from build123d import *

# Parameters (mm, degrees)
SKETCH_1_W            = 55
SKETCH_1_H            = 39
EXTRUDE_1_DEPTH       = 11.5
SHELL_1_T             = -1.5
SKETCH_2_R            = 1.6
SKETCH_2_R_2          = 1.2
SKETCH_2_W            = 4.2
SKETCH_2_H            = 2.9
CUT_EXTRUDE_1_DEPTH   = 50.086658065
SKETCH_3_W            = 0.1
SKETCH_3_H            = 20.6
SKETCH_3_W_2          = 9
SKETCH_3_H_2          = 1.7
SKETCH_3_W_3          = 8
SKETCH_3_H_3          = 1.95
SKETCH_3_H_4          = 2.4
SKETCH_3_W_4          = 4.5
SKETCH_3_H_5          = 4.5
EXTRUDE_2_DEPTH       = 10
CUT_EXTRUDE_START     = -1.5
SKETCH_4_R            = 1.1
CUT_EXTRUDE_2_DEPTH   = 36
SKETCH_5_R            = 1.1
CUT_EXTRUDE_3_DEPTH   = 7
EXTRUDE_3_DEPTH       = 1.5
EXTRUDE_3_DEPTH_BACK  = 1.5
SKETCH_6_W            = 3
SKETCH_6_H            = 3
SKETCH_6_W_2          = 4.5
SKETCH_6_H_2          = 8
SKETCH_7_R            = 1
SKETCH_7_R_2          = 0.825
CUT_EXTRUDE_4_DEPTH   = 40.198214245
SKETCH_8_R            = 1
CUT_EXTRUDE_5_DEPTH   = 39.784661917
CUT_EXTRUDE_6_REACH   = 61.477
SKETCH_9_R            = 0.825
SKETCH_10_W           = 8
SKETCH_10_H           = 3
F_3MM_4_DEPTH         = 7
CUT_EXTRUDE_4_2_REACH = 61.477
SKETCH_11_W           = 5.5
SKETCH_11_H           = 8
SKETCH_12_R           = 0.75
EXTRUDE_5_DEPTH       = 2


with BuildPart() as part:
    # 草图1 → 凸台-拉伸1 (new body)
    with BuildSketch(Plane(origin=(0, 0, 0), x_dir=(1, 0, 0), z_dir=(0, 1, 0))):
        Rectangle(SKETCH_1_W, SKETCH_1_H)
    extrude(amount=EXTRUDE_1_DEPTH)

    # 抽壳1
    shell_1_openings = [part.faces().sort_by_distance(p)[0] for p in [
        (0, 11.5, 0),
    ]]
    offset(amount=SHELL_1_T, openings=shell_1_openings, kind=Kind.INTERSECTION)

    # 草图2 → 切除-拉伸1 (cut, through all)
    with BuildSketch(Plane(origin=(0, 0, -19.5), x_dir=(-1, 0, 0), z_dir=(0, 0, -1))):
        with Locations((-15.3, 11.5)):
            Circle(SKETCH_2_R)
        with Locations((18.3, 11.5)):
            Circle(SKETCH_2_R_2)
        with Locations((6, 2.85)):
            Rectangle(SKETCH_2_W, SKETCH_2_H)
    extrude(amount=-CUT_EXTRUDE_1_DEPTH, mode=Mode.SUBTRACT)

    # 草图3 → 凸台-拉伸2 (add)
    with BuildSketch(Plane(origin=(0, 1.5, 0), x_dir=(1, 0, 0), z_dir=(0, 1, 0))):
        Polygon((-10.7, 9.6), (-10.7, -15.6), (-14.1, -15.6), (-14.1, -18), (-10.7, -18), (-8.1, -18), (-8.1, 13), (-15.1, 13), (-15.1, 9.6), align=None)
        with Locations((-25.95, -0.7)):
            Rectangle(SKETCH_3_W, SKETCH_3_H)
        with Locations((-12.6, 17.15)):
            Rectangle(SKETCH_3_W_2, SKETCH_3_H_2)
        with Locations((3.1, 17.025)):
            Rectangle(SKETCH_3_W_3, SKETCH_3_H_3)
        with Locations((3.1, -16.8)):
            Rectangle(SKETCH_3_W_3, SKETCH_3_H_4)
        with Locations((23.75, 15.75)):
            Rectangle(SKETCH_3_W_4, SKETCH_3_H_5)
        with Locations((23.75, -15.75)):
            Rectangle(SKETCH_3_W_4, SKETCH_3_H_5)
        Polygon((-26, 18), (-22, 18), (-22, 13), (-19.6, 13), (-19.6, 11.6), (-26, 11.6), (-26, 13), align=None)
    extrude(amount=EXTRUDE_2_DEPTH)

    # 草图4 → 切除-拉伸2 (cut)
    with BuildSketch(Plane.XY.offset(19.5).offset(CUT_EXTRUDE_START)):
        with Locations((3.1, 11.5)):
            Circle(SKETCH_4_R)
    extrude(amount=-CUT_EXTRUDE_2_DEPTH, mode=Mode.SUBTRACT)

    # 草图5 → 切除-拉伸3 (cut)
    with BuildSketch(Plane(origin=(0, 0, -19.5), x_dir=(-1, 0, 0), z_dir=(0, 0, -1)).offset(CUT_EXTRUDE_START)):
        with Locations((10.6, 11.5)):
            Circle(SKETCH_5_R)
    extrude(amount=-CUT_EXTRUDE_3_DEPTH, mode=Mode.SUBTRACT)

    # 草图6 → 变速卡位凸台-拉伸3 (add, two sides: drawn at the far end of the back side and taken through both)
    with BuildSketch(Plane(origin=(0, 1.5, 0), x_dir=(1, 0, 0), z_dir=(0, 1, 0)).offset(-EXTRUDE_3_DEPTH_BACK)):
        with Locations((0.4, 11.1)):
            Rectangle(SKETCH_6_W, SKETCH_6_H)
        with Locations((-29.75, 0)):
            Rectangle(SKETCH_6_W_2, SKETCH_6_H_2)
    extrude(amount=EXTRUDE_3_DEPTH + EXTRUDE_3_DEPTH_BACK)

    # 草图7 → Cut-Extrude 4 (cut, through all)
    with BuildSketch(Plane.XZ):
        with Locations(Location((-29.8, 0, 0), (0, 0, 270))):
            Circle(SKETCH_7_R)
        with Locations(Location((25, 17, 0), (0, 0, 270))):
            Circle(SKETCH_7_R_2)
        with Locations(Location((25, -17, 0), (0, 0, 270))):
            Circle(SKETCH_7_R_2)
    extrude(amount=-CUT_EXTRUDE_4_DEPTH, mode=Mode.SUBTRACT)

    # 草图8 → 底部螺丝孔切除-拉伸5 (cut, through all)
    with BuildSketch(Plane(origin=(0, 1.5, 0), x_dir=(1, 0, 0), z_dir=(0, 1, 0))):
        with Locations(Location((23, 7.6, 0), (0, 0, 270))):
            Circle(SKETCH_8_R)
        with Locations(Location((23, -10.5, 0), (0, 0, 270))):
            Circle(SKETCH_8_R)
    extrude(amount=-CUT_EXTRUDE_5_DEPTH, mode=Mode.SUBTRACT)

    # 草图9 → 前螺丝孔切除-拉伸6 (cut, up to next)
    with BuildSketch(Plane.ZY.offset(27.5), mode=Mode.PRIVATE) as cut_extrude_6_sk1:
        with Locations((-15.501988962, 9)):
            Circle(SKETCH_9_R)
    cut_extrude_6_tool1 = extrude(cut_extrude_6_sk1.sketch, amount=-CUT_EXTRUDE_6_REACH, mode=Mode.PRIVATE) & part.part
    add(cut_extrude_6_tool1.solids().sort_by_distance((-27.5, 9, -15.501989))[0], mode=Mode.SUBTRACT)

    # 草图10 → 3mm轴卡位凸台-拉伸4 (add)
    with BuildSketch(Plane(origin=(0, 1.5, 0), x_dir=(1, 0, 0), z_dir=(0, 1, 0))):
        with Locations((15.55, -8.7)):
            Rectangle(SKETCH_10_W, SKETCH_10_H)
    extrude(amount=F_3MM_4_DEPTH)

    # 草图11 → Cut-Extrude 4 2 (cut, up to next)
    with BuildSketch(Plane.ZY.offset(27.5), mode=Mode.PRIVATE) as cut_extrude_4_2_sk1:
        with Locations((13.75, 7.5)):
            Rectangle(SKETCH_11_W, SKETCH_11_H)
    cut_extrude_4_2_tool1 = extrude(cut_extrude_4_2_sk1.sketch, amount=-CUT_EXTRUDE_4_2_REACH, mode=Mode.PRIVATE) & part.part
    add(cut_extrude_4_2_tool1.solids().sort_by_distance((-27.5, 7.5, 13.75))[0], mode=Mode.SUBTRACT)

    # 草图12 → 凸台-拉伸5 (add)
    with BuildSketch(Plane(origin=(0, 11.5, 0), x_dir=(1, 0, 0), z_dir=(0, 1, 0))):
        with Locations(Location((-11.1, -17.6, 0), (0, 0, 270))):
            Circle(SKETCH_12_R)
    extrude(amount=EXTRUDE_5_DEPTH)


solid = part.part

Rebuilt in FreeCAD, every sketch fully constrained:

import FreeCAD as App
import Part
import Sketcher
Q = App.Units.Quantity


def faces_at(feature, points):
    """Names of the faces that lie closest to the given points."""
    faces = feature.Shape.Faces
    near = lambda p: min(range(len(faces)), key=lambda i: faces[i].distToShape(Part.Vertex(*p))[0])
    return sorted({f"Face{near(p) + 1}" for p in points})

doc = App.newDocument("Part")
params = doc.addObject("Spreadsheet::Sheet", "Params")
for row, (alias, value) in enumerate([
    ("sketch1_width", "55 mm"),
    ("sketch1_height", "39 mm"),
    ("pad1_length", "11.5 mm"),
    ("thickness_wall", "1.5 mm"),
    ("sketch2_diameter", "3.2 mm"),
    ("sketch2_diameter2", "2.4 mm"),
    ("sketch2_width", "4.2 mm"),
    ("sketch2_height", "2.9 mm"),
    ("sketch3_width", "6 mm"),
    ("sketch3_width2", "7 mm"),
    ("sketch3_width3", "9 mm"),
    ("sketch3_width4", "8 mm"),
    ("sketch3_width5", "4 mm"),
    ("pad2_length", "10 mm"),
    ("sketch4_diameter", "2.2 mm"),
    ("pocket2_length", "36 mm"),
    ("sketch5_diameter", "2.2 mm"),
    ("pocket3_length", "7 mm"),
    ("sketch6_width", "3 mm"),
    ("sketch6_height", "8 mm"),
    ("sketch6_width2", "4.5 mm"),
    ("pad3_length", "1.5 mm"),
    ("pad3_length2", "1.5 mm"),
    ("sketch7_diameter", "2 mm"),
    ("sketch7_diameter2", "1.65 mm"),
    ("sketch8_diameter", "2 mm"),
    ("sketch9_diameter", "1.65 mm"),
    ("sketch10_width", "8 mm"),
    ("sketch10_height", "3 mm"),
    ("pad4_length", "7 mm"),
    ("sketch11_width", "8 mm"),
    ("sketch11_height", "5.5 mm"),
    ("sketch12_diameter", "1.5 mm"),
    ("pad5_length", "2 mm"),
], start=1):
    params.set(f"A{row}", alias)
    params.set(f"B{row}", "=" + value)
    params.setAlias(f"B{row}", alias)

body = doc.addObject("PartDesign::Body", "Body")

# Sketch on XZ plane
sketch1 = body.newObject("Sketcher::SketchObject", "Sketch")
sketch1.AttachmentSupport = (doc.getObject("XZ_Plane"), [""])
sketch1.MapMode = "FlatFace"
sketch1.addGeometry([
    Part.LineSegment(App.Vector(-27.5, -19.5, 0), App.Vector(-27.5, 19.5, 0)),
    Part.LineSegment(App.Vector(-27.5, 19.5, 0), App.Vector(27.5, 19.5, 0)),
    Part.LineSegment(App.Vector(27.5, 19.5, 0), App.Vector(27.5, -19.5, 0)),
    Part.LineSegment(App.Vector(27.5, -19.5, 0), App.Vector(-27.5, -19.5, 0)),
], False)
sketch1.addConstraint([
    Sketcher.Constraint("Coincident", 0, 2, 1, 1),
    Sketcher.Constraint("Coincident", 1, 2, 2, 1),
    Sketcher.Constraint("Coincident", 2, 2, 3, 1),
    Sketcher.Constraint("Coincident", 3, 2, 0, 1),
    Sketcher.Constraint("Vertical", 0),
    Sketcher.Constraint("Horizontal", 1),
    Sketcher.Constraint("Vertical", 2),
    Sketcher.Constraint("Horizontal", 3),
    Sketcher.Constraint("Symmetric", 0, 2, 2, 2, -1, 1),
    Sketcher.Constraint("DistanceX", 1, 1, 1, 2, Q("55 mm")),
    Sketcher.Constraint("DistanceY", 0, 1, 0, 2, Q("39 mm")),
])
sketch1.setExpression("Constraints[9]", "Params.sketch1_width")
sketch1.setExpression("Constraints[10]", "Params.sketch1_height")
pad1 = body.newObject("PartDesign::Pad", "Pad")
pad1.Profile = sketch1
pad1.setExpression("Length", "Params.pad1_length")
pad1.Reversed = True
doc.recompute()

thickness = body.newObject("PartDesign::Thickness", "Thickness")
thickness.Base = (pad1, faces_at(pad1, [(0, 11.5, 0)]))
thickness.setExpression("Value", "Params.thickness_wall")
thickness.Reversed = True
thickness.Join = "Intersection"

# Sketch on XY plane
sketch2 = body.newObject("Sketcher::SketchObject", "Sketch001")
sketch2.AttachmentSupport = (doc.getObject("XY_Plane"), [""])
sketch2.MapMode = "FlatFace"
sketch2.AttachmentOffset = App.Placement(App.Vector(0, 0, -19.5), App.Rotation())
sketch2.addGeometry([
    Part.Circle(App.Vector(15.3, 11.5, 0), App.Vector(0, 0, 1), 1.6),  # 0
    Part.Circle(App.Vector(-18.3, 11.5, 0), App.Vector(0, 0, 1), 1.2),  # 1
    Part.LineSegment(App.Vector(-3.9, 4.3, 0), App.Vector(-3.9, 1.4, 0)),  # 2
    Part.LineSegment(App.Vector(-3.9, 1.4, 0), App.Vector(-8.1, 1.4, 0)),  # 3
    Part.LineSegment(App.Vector(-8.1, 1.4, 0), App.Vector(-8.1, 4.3, 0)),  # 4
    Part.LineSegment(App.Vector(-8.1, 4.3, 0), App.Vector(-3.9, 4.3, 0)),  # 5
], False)
sketch2.addConstraint([
    Sketcher.Constraint("Coincident", 2, 2, 3, 1),
    Sketcher.Constraint("Coincident", 3, 2, 4, 1),
    Sketcher.Constraint("Coincident", 4, 2, 5, 1),
    Sketcher.Constraint("Coincident", 5, 2, 2, 1),
    Sketcher.Constraint("Vertical", 2),
    Sketcher.Constraint("Horizontal", 3),
    Sketcher.Constraint("Vertical", 4),
    Sketcher.Constraint("Horizontal", 5),
    Sketcher.Constraint("Horizontal", 0, 3, 1, 3),
    Sketcher.Constraint("Diameter", 0, Q("3.2 mm")),
    Sketcher.Constraint("Diameter", 1, Q("2.4 mm")),
    Sketcher.Constraint("DistanceX", 3, 2, 3, 1, Q("4.2 mm")),
    Sketcher.Constraint("DistanceY", 2, 2, 2, 1, Q("2.9 mm")),
    Sketcher.Constraint("DistanceX", -1, 1, 0, 3, Q("15.3 mm")),
    Sketcher.Constraint("DistanceY", -1, 1, 0, 3, Q("11.5 mm")),
    Sketcher.Constraint("DistanceX", 1, 3, -1, 1, Q("18.3 mm")),
    Sketcher.Constraint("DistanceX", 2, 2, -1, 1, Q("3.9 mm")),
    Sketcher.Constraint("DistanceY", -1, 1, 2, 2, Q("1.4 mm")),
])
sketch2.setExpression("Constraints[9]", "Params.sketch2_diameter")
sketch2.setExpression("Constraints[10]", "Params.sketch2_diameter2")
sketch2.setExpression("Constraints[11]", "Params.sketch2_width")
sketch2.setExpression("Constraints[12]", "Params.sketch2_height")
pocket1 = body.newObject("PartDesign::Pocket", "Pocket")
pocket1.Profile = sketch2
pocket1.Type = "ThroughAll"
pocket1.Reversed = True

# Sketch on XZ plane
sketch3 = body.newObject("Sketcher::SketchObject", "Sketch002")
sketch3.AttachmentSupport = (doc.getObject("XZ_Plane"), [""])
sketch3.MapMode = "FlatFace"
sketch3.AttachmentOffset = App.Placement(App.Vector(0, 0, -1.5), App.Rotation())
sketch3.addGeometry([
    Part.LineSegment(App.Vector(-10.7, -9.6, 0), App.Vector(-10.7, 15.6, 0)),  # 0
    Part.LineSegment(App.Vector(-10.7, 15.6, 0), App.Vector(-14.1, 15.6, 0)),  # 1
    Part.LineSegment(App.Vector(-14.1, 15.6, 0), App.Vector(-14.1, 18, 0)),  # 2
    Part.LineSegment(App.Vector(-14.1, 18, 0), App.Vector(-8.1, 18, 0)),  # 3
    Part.LineSegment(App.Vector(-8.1, 18, 0), App.Vector(-8.1, -13, 0)),  # 4
    Part.LineSegment(App.Vector(-8.1, -13, 0), App.Vector(-15.1, -13, 0)),  # 5
    Part.LineSegment(App.Vector(-15.1, -13, 0), App.Vector(-15.1, -9.6, 0)),  # 6
    Part.LineSegment(App.Vector(-15.1, -9.6, 0), App.Vector(-10.7, -9.6, 0)),  # 7
    Part.LineSegment(App.Vector(-26, -9.6, 0), App.Vector(-26, 11, 0)),  # 8
    Part.LineSegment(App.Vector(-26, 11, 0), App.Vector(-25.9, 11, 0)),  # 9
    Part.LineSegment(App.Vector(-25.9, 11, 0), App.Vector(-25.9, -9.6, 0)),  # 10
    Part.LineSegment(App.Vector(-25.9, -9.6, 0), App.Vector(-26, -9.6, 0)),  # 11
    Part.LineSegment(App.Vector(-17.1, -18, 0), App.Vector(-17.1, -16.3, 0)),  # 12
    Part.LineSegment(App.Vector(-17.1, -16.3, 0), App.Vector(-8.1, -16.3, 0)),  # 13
    Part.LineSegment(App.Vector(-8.1, -16.3, 0), App.Vector(-8.1, -18, 0)),  # 14
    Part.LineSegment(App.Vector(-8.1, -18, 0), App.Vector(-17.1, -18, 0)),  # 15
    Part.LineSegment(App.Vector(-0.9, -18, 0), App.Vector(-0.9, -16.05, 0)),  # 16
    Part.LineSegment(App.Vector(-0.9, -16.05, 0), App.Vector(7.1, -16.05, 0)),  # 17
    Part.LineSegment(App.Vector(7.1, -16.05, 0), App.Vector(7.1, -18, 0)),  # 18
    Part.LineSegment(App.Vector(7.1, -18, 0), App.Vector(-0.9, -18, 0)),  # 19
    Part.LineSegment(App.Vector(-0.9, 15.6, 0), App.Vector(-0.9, 18, 0)),  # 20
    Part.LineSegment(App.Vector(-0.9, 18, 0), App.Vector(7.1, 18, 0)),  # 21
    Part.LineSegment(App.Vector(7.1, 18, 0), App.Vector(7.1, 15.6, 0)),  # 22
    Part.LineSegment(App.Vector(7.1, 15.6, 0), App.Vector(-0.9, 15.6, 0)),  # 23
    Part.LineSegment(App.Vector(21.5, -18, 0), App.Vector(21.5, -13.5, 0)),  # 24
    Part.LineSegment(App.Vector(21.5, -13.5, 0), App.Vector(26, -13.5, 0)),  # 25
    Part.LineSegment(App.Vector(26, -13.5, 0), App.Vector(26, -18, 0)),  # 26
    Part.LineSegment(App.Vector(26, -18, 0), App.Vector(21.5, -18, 0)),  # 27
    Part.LineSegment(App.Vector(21.5, 13.5, 0), App.Vector(21.5, 18, 0)),  # 28
    Part.LineSegment(App.Vector(21.5, 18, 0), App.Vector(26, 18, 0)),  # 29
    Part.LineSegment(App.Vector(26, 18, 0), App.Vector(26, 13.5, 0)),  # 30
    Part.LineSegment(App.Vector(26, 13.5, 0), App.Vector(21.5, 13.5, 0)),  # 31
    Part.LineSegment(App.Vector(-22, -18, 0), App.Vector(-26, -18, 0)),  # 32
    Part.LineSegment(App.Vector(-26, -18, 0), App.Vector(-26, -11.6, 0)),  # 33
    Part.LineSegment(App.Vector(-26, -11.6, 0), App.Vector(-19.6, -11.6, 0)),  # 34
    Part.LineSegment(App.Vector(-19.6, -11.6, 0), App.Vector(-19.6, -13, 0)),  # 35
    Part.LineSegment(App.Vector(-19.6, -13, 0), App.Vector(-22, -13, 0)),  # 36
    Part.LineSegment(App.Vector(-22, -13, 0), App.Vector(-22, -18, 0)),  # 37
], False)
sketch3.addConstraint([
    Sketcher.Constraint("Coincident", 0, 2, 1, 1),
    Sketcher.Constraint("Coincident", 1, 2, 2, 1),
    Sketcher.Constraint("Coincident", 2, 2, 3, 1),
    Sketcher.Constraint("Coincident", 3, 2, 4, 1),
    Sketcher.Constraint("Coincident", 4, 2, 5, 1),
    Sketcher.Constraint("Coincident", 5, 2, 6, 1),
    Sketcher.Constraint("Coincident", 6, 2, 7, 1),
    Sketcher.Constraint("Coincident", 7, 2, 0, 1),
    Sketcher.Constraint("Coincident", 8, 2, 9, 1),
    Sketcher.Constraint("Coincident", 9, 2, 10, 1),
    Sketcher.Constraint("Coincident", 10, 2, 11, 1),
    Sketcher.Constraint("Coincident", 11, 2, 8, 1),
    Sketcher.Constraint("Coincident", 12, 2, 13, 1),
    Sketcher.Constraint("Coincident", 13, 2, 14, 1),
    Sketcher.Constraint("Coincident", 14, 2, 15, 1),
    Sketcher.Constraint("Coincident", 15, 2, 12, 1),
    Sketcher.Constraint("Coincident", 16, 2, 17, 1),
    Sketcher.Constraint("Coincident", 17, 2, 18, 1),
    Sketcher.Constraint("Coincident", 18, 2, 19, 1),
    Sketcher.Constraint("Coincident", 19, 2, 16, 1),
    Sketcher.Constraint("Coincident", 20, 2, 21, 1),
    Sketcher.Constraint("Coincident", 21, 2, 22, 1),
    Sketcher.Constraint("Coincident", 22, 2, 23, 1),
    Sketcher.Constraint("Coincident", 23, 2, 20, 1),
    Sketcher.Constraint("Coincident", 24, 2, 25, 1),
    Sketcher.Constraint("Coincident", 25, 2, 26, 1),
    Sketcher.Constraint("Coincident", 26, 2, 27, 1),
    Sketcher.Constraint("Coincident", 27, 2, 24, 1),
    Sketcher.Constraint("Coincident", 28, 2, 29, 1),
    Sketcher.Constraint("Coincident", 29, 2, 30, 1),
    Sketcher.Constraint("Coincident", 30, 2, 31, 1),
    Sketcher.Constraint("Coincident", 31, 2, 28, 1),
    Sketcher.Constraint("Coincident", 32, 2, 33, 1),
    Sketcher.Constraint("Coincident", 33, 2, 34, 1),
    Sketcher.Constraint("Coincident", 34, 2, 35, 1),
    Sketcher.Constraint("Coincident", 35, 2, 36, 1),
    Sketcher.Constraint("Coincident", 36, 2, 37, 1),
    Sketcher.Constraint("Coincident", 37, 2, 32, 1),
    Sketcher.Constraint("Vertical", 0),
    Sketcher.Constraint("Horizontal", 1),
    Sketcher.Constraint("Vertical", 2),
    Sketcher.Constraint("Horizontal", 3),
    Sketcher.Constraint("Vertical", 4),
    Sketcher.Constraint("Horizontal", 5),
    Sketcher.Constraint("Vertical", 6),
    Sketcher.Constraint("Horizontal", 7),
    Sketcher.Constraint("Vertical", 8),
    Sketcher.Constraint("Horizontal", 9),
    Sketcher.Constraint("Vertical", 10),
    Sketcher.Constraint("Horizontal", 11),
    Sketcher.Constraint("Vertical", 12),
    Sketcher.Constraint("Horizontal", 13),
    Sketcher.Constraint("Vertical", 14),
    Sketcher.Constraint("Horizontal", 15),
    Sketcher.Constraint("Vertical", 16),
    Sketcher.Constraint("Horizontal", 17),
    Sketcher.Constraint("Vertical", 18),
    Sketcher.Constraint("Horizontal", 19),
    Sketcher.Constraint("Vertical", 20),
    Sketcher.Constraint("Horizontal", 21),
    Sketcher.Constraint("Vertical", 22),
    Sketcher.Constraint("Horizontal", 23),
    Sketcher.Constraint("Vertical", 24),
    Sketcher.Constraint("Horizontal", 25),
    Sketcher.Constraint("Vertical", 26),
    Sketcher.Constraint("Horizontal", 27),
    Sketcher.Constraint("Vertical", 28),
    Sketcher.Constraint("Horizontal", 29),
    Sketcher.Constraint("Vertical", 30),
    Sketcher.Constraint("Horizontal", 31),
    Sketcher.Constraint("Horizontal", 32),
    Sketcher.Constraint("Vertical", 33),
    Sketcher.Constraint("Horizontal", 34),
    Sketcher.Constraint("Vertical", 35),
    Sketcher.Constraint("Horizontal", 36),
    Sketcher.Constraint("Vertical", 37),
    Sketcher.Constraint("Symmetric", 29, 2, 32, 2, -1, 1),
    Sketcher.Constraint("Symmetric", 26, 2, 32, 2, -2),
    Sketcher.Constraint("Symmetric", 3, 2, 14, 2, -1),
    Sketcher.Constraint("Symmetric", 19, 2, 20, 2, -1),
    Sketcher.Constraint("Symmetric", 24, 2, 31, 2, -1),
    Sketcher.Constraint("Horizontal", 7, 2, 10, 2),
    Sketcher.Constraint("Horizontal", 15, 2, 18, 2),
    Sketcher.Constraint("Horizontal", 1, 2, 22, 2),
    Sketcher.Constraint("Horizontal", 19, 2, 26, 2),
    Sketcher.Constraint("Horizontal", 5, 2, 35, 2),
    Sketcher.Constraint("Vertical", 18, 2, 21, 2),
    Sketcher.Constraint("Vertical", 11, 2, 32, 2),
    Sketcher.Constraint("Equal", 36, 2),
    Sketcher.Constraint("Equal", 1, 6),
    Sketcher.Constraint("Equal", 31, 24),
    Sketcher.Constraint("Equal", 34, 33),
    Sketcher.Constraint("DistanceX", 3, 1, 3, 2, Q("6 mm")),
    Sketcher.Constraint("DistanceX", 5, 2, 5, 1, Q("7 mm")),
    Sketcher.Constraint("DistanceX", 13, 1, 13, 2, Q("9 mm")),
    Sketcher.Constraint("DistanceX", 17, 1, 17, 2, Q("8 mm")),
    Sketcher.Constraint("DistanceX", 32, 2, 32, 1, Q("4 mm")),
    Sketcher.Constraint("DistanceY", 4, 2, 4, 1, Q("31 mm")),
    Sketcher.Constraint("DistanceY", 37, 2, 37, 1, Q("5 mm")),
    Sketcher.Constraint("DistanceX", 1, 2, 1, 1, Q("3.4 mm")),
    Sketcher.Constraint("DistanceX", 9, 1, 9, 2, Q("0.1 mm")),
    Sketcher.Constraint("DistanceX", 25, 1, 25, 2, Q("4.5 mm")),
    Sketcher.Constraint("DistanceX", 34, 1, 34, 2, Q("6.4 mm")),
    Sketcher.Constraint("DistanceY", 8, 1, 8, 2, Q("20.6 mm")),
    Sketcher.Constraint("DistanceY", 12, 1, 12, 2, Q("1.7 mm")),
    Sketcher.Constraint("DistanceX", 8, 2, -1, 1, Q("26 mm")),
    Sketcher.Constraint("DistanceX", 9, 2, 20, 2, Q("25 mm")),
    Sketcher.Constraint("DistanceY", 16, 1, 16, 2, Q("1.95 mm")),
    Sketcher.Constraint("DistanceX", 0, 2, -1, 1, Q("10.7 mm")),
])
sketch3.setExpression("Constraints[92]", "Params.sketch3_width")
sketch3.setExpression("Constraints[93]", "Params.sketch3_width2")
sketch3.setExpression("Constraints[94]", "Params.sketch3_width3")
sketch3.setExpression("Constraints[95]", "Params.sketch3_width4")
sketch3.setExpression("Constraints[96]", "Params.sketch3_width5")
pad2 = body.newObject("PartDesign::Pad", "Pad001")
pad2.Profile = sketch3
pad2.setExpression("Length", "Params.pad2_length")
pad2.Reversed = True

# Sketch on XY plane
sketch4 = body.newObject("Sketcher::SketchObject", "Sketch003")
sketch4.AttachmentSupport = (doc.getObject("XY_Plane"), [""])
sketch4.MapMode = "FlatFace"
sketch4.AttachmentOffset = App.Placement(App.Vector(0, 0, 18), App.Rotation())
sketch4.addGeometry(Part.Circle(App.Vector(3.1, 11.5, 0), App.Vector(0, 0, 1), 1.1), False)
sketch4.addConstraint([
    Sketcher.Constraint("Diameter", 0, Q("2.2 mm")),
    Sketcher.Constraint("DistanceX", -1, 1, 0, 3, Q("3.1 mm")),
    Sketcher.Constraint("DistanceY", -1, 1, 0, 3, Q("11.5 mm")),
])
sketch4.setExpression("Constraints[0]", "Params.sketch4_diameter")
pocket2 = body.newObject("PartDesign::Pocket", "Pocket001")
pocket2.Profile = sketch4
pocket2.setExpression("Length", "Params.pocket2_length")

# Sketch on XY plane
sketch5 = body.newObject("Sketcher::SketchObject", "Sketch004")
sketch5.AttachmentSupport = (doc.getObject("XY_Plane"), [""])
sketch5.MapMode = "FlatFace"
sketch5.AttachmentOffset = App.Placement(App.Vector(0, 0, -18), App.Rotation())
sketch5.addGeometry(Part.Circle(App.Vector(-10.6, 11.5, 0), App.Vector(0, 0, 1), 1.1), False)
sketch5.addConstraint([
    Sketcher.Constraint("Diameter", 0, Q("2.2 mm")),
    Sketcher.Constraint("DistanceX", 0, 3, -1, 1, Q("10.6 mm")),
    Sketcher.Constraint("DistanceY", -1, 1, 0, 3, Q("11.5 mm")),
])
sketch5.setExpression("Constraints[0]", "Params.sketch5_diameter")
pocket3 = body.newObject("PartDesign::Pocket", "Pocket002")
pocket3.Profile = sketch5
pocket3.setExpression("Length", "Params.pocket3_length")
pocket3.Reversed = True

# Sketch on XZ plane
sketch6 = body.newObject("Sketcher::SketchObject", "Sketch005")
sketch6.AttachmentSupport = (doc.getObject("XZ_Plane"), [""])
sketch6.MapMode = "FlatFace"
sketch6.AttachmentOffset = App.Placement(App.Vector(0, 0, -1.5), App.Rotation())
sketch6.addGeometry([
    Part.LineSegment(App.Vector(-1.1, -12.6, 0), App.Vector(-1.1, -9.6, 0)),  # 0
    Part.LineSegment(App.Vector(-1.1, -9.6, 0), App.Vector(1.9, -9.6, 0)),  # 1
    Part.LineSegment(App.Vector(1.9, -9.6, 0), App.Vector(1.9, -12.6, 0)),  # 2
    Part.LineSegment(App.Vector(1.9, -12.6, 0), App.Vector(-1.1, -12.6, 0)),  # 3
    Part.LineSegment(App.Vector(-32, -4, 0), App.Vector(-32, 4, 0)),  # 4
    Part.LineSegment(App.Vector(-32, 4, 0), App.Vector(-27.5, 4, 0)),  # 5
    Part.LineSegment(App.Vector(-27.5, 4, 0), App.Vector(-27.5, -4, 0)),  # 6
    Part.LineSegment(App.Vector(-27.5, -4, 0), App.Vector(-32, -4, 0)),  # 7
], False)
sketch6.addConstraint([
    Sketcher.Constraint("Coincident", 0, 2, 1, 1),
    Sketcher.Constraint("Coincident", 1, 2, 2, 1),
    Sketcher.Constraint("Coincident", 2, 2, 3, 1),
    Sketcher.Constraint("Coincident", 3, 2, 0, 1),
    Sketcher.Constraint("Coincident", 4, 2, 5, 1),
    Sketcher.Constraint("Coincident", 5, 2, 6, 1),
    Sketcher.Constraint("Coincident", 6, 2, 7, 1),
    Sketcher.Constraint("Coincident", 7, 2, 4, 1),
    Sketcher.Constraint("Vertical", 0),
    Sketcher.Constraint("Horizontal", 1),
    Sketcher.Constraint("Vertical", 2),
    Sketcher.Constraint("Horizontal", 3),
    Sketcher.Constraint("Vertical", 4),
    Sketcher.Constraint("Horizontal", 5),
    Sketcher.Constraint("Vertical", 6),
    Sketcher.Constraint("Horizontal", 7),
    Sketcher.Constraint("Equal", 3, 0),
    Sketcher.Constraint("DistanceX", 1, 1, 1, 2, Q("3 mm")),
    Sketcher.Constraint("DistanceY", 4, 1, 4, 2, Q("8 mm")),
    Sketcher.Constraint("DistanceX", 5, 1, 5, 2, Q("4.5 mm")),
    Sketcher.Constraint("DistanceX", 4, 2, -1, 1, Q("32 mm")),
    Sketcher.Constraint("DistanceY", -1, 1, 4, 2, Q("4 mm")),
    Sketcher.Constraint("DistanceX", 0, 2, -1, 1, Q("1.1 mm")),
    Sketcher.Constraint("DistanceY", 0, 2, -1, 1, Q("9.6 mm")),
])
sketch6.setExpression("Constraints[17]", "Params.sketch6_width")
sketch6.setExpression("Constraints[18]", "Params.sketch6_height")
sketch6.setExpression("Constraints[19]", "Params.sketch6_width2")
pad3 = body.newObject("PartDesign::Pad", "Pad002")
pad3.Profile = sketch6
pad3.Type = "TwoLengths"
pad3.setExpression("Length", "Params.pad3_length")
pad3.setExpression("Length2", "Params.pad3_length2")
pad3.Reversed = True

# Sketch on XZ plane
sketch7 = body.newObject("Sketcher::SketchObject", "Sketch006")
sketch7.AttachmentSupport = (doc.getObject("XZ_Plane"), [""])
sketch7.MapMode = "FlatFace"
sketch7.addGeometry([
    Part.Circle(App.Vector(-29.8, 0, 0), App.Vector(0, 0, 1), 1),
    Part.Circle(App.Vector(25, 17, 0), App.Vector(0, 0, 1), 0.825),
    Part.Circle(App.Vector(25, -17, 0), App.Vector(0, 0, 1), 0.825),
], False)
sketch7.addConstraint([
    Sketcher.Constraint("Equal", 1, 2),
    Sketcher.Constraint("Symmetric", 1, 3, 2, 3, -1),
    Sketcher.Constraint("PointOnObject", 0, 3, -1),
    Sketcher.Constraint("Diameter", 0, Q("2 mm")),
    Sketcher.Constraint("Diameter", 1, Q("1.65 mm")),
    Sketcher.Constraint("DistanceX", -1, 1, 1, 3, Q("25 mm")),
    Sketcher.Constraint("DistanceY", -1, 1, 1, 3, Q("17 mm")),
    Sketcher.Constraint("DistanceX", 0, 3, -1, 1, Q("29.8 mm")),
])
sketch7.setExpression("Constraints[3]", "Params.sketch7_diameter")
sketch7.setExpression("Constraints[4]", "Params.sketch7_diameter2")
pocket4 = body.newObject("PartDesign::Pocket", "Pocket003")
pocket4.Profile = sketch7
pocket4.Type = "ThroughAll"

# Sketch on XZ plane
sketch8 = body.newObject("Sketcher::SketchObject", "Sketch007")
sketch8.AttachmentSupport = (doc.getObject("XZ_Plane"), [""])
sketch8.MapMode = "FlatFace"
sketch8.AttachmentOffset = App.Placement(App.Vector(0, 0, -1.5), App.Rotation())
sketch8.addGeometry([
    Part.Circle(App.Vector(23, -7.6, 0), App.Vector(0, 0, 1), 1),
    Part.Circle(App.Vector(23, 10.5, 0), App.Vector(0, 0, 1), 1),
], False)
sketch8.addConstraint([
    Sketcher.Constraint("Equal", 0, 1),
    Sketcher.Constraint("Vertical", 0, 3, 1, 3),
    Sketcher.Constraint("Diameter", 0, Q("2 mm")),
    Sketcher.Constraint("DistanceX", -1, 1, 0, 3, Q("23 mm")),
    Sketcher.Constraint("DistanceY", 0, 3, -1, 1, Q("7.6 mm")),
    Sketcher.Constraint("DistanceY", -1, 1, 1, 3, Q("10.5 mm")),
])
sketch8.setExpression("Constraints[2]", "Params.sketch8_diameter")
pocket5 = body.newObject("PartDesign::Pocket", "Pocket004")
pocket5.Profile = sketch8
pocket5.Type = "ThroughAll"
pocket5.Reversed = True

# Sketch on YZ plane
sketch9 = body.newObject("Sketcher::SketchObject", "Sketch008")
sketch9.AttachmentSupport = (doc.getObject("YZ_Plane"), [""])
sketch9.MapMode = "FlatFace"
sketch9.AttachmentOffset = App.Placement(App.Vector(0, 0, -27.5), App.Rotation())
sketch9.addGeometry(Part.Circle(App.Vector(9, -15.501989, 0), App.Vector(0, 0, 1), 0.825), False)
sketch9.addConstraint([
    Sketcher.Constraint("Diameter", 0, Q("1.65 mm")),
    Sketcher.Constraint("DistanceX", -1, 1, 0, 3, Q("9 mm")),
    Sketcher.Constraint("DistanceY", 0, 3, -1, 1, Q("15.501989 mm")),
])
sketch9.setExpression("Constraints[0]", "Params.sketch9_diameter")
pocket6 = body.newObject("PartDesign::Pocket", "Pocket005")
pocket6.Profile = sketch9
pocket6.Type = "UpToFirst"
pocket6.Reversed = True

# Sketch on XZ plane
sketch10 = body.newObject("Sketcher::SketchObject", "Sketch009")
sketch10.AttachmentSupport = (doc.getObject("XZ_Plane"), [""])
sketch10.MapMode = "FlatFace"
sketch10.AttachmentOffset = App.Placement(App.Vector(0, 0, -1.5), App.Rotation())
sketch10.addGeometry([
    Part.LineSegment(App.Vector(11.55, 7.2, 0), App.Vector(11.55, 10.2, 0)),
    Part.LineSegment(App.Vector(11.55, 10.2, 0), App.Vector(19.55, 10.2, 0)),
    Part.LineSegment(App.Vector(19.55, 10.2, 0), App.Vector(19.55, 7.2, 0)),
    Part.LineSegment(App.Vector(19.55, 7.2, 0), App.Vector(11.55, 7.2, 0)),
], False)
sketch10.addConstraint([
    Sketcher.Constraint("Coincident", 0, 2, 1, 1),
    Sketcher.Constraint("Coincident", 1, 2, 2, 1),
    Sketcher.Constraint("Coincident", 2, 2, 3, 1),
    Sketcher.Constraint("Coincident", 3, 2, 0, 1),
    Sketcher.Constraint("Vertical", 0),
    Sketcher.Constraint("Horizontal", 1),
    Sketcher.Constraint("Vertical", 2),
    Sketcher.Constraint("Horizontal", 3),
    Sketcher.Constraint("DistanceX", 1, 1, 1, 2, Q("8 mm")),
    Sketcher.Constraint("DistanceY", 0, 1, 0, 2, Q("3 mm")),
    Sketcher.Constraint("DistanceY", -1, 1, 0, 2, Q("10.2 mm")),
    Sketcher.Constraint("DistanceX", -1, 1, 0, 2, Q("11.55 mm")),
])
sketch10.setExpression("Constraints[8]", "Params.sketch10_width")
sketch10.setExpression("Constraints[9]", "Params.sketch10_height")
pad4 = body.newObject("PartDesign::Pad", "Pad003")
pad4.Profile = sketch10
pad4.setExpression("Length", "Params.pad4_length")
pad4.Reversed = True

# Sketch on YZ plane
sketch11 = body.newObject("Sketcher::SketchObject", "Sketch010")
sketch11.AttachmentSupport = (doc.getObject("YZ_Plane"), [""])
sketch11.MapMode = "FlatFace"
sketch11.AttachmentOffset = App.Placement(App.Vector(0, 0, -27.5), App.Rotation())
sketch11.addGeometry([
    Part.LineSegment(App.Vector(11.5, 11, 0), App.Vector(3.5, 11, 0)),
    Part.LineSegment(App.Vector(3.5, 11, 0), App.Vector(3.5, 16.5, 0)),
    Part.LineSegment(App.Vector(3.5, 16.5, 0), App.Vector(11.5, 16.5, 0)),
    Part.LineSegment(App.Vector(11.5, 16.5, 0), App.Vector(11.5, 11, 0)),
], False)
sketch11.addConstraint([
    Sketcher.Constraint("Coincident", 0, 2, 1, 1),
    Sketcher.Constraint("Coincident", 1, 2, 2, 1),
    Sketcher.Constraint("Coincident", 2, 2, 3, 1),
    Sketcher.Constraint("Coincident", 3, 2, 0, 1),
    Sketcher.Constraint("Horizontal", 0),
    Sketcher.Constraint("Vertical", 1),
    Sketcher.Constraint("Horizontal", 2),
    Sketcher.Constraint("Vertical", 3),
    Sketcher.Constraint("DistanceX", 0, 2, 0, 1, Q("8 mm")),
    Sketcher.Constraint("DistanceY", 1, 1, 1, 2, Q("5.5 mm")),
    Sketcher.Constraint("DistanceY", -1, 1, 0, 2, Q("11 mm")),
    Sketcher.Constraint("DistanceX", -1, 1, 0, 2, Q("3.5 mm")),
])
sketch11.setExpression("Constraints[8]", "Params.sketch11_width")
sketch11.setExpression("Constraints[9]", "Params.sketch11_height")
pocket7 = body.newObject("PartDesign::Pocket", "Pocket006")
pocket7.Profile = sketch11
pocket7.Type = "UpToFirst"
pocket7.Reversed = True

# Sketch on XZ plane
sketch12 = body.newObject("Sketcher::SketchObject", "Sketch011")
sketch12.AttachmentSupport = (doc.getObject("XZ_Plane"), [""])
sketch12.MapMode = "FlatFace"
sketch12.AttachmentOffset = App.Placement(App.Vector(0, 0, -11.5), App.Rotation())
sketch12.addGeometry(Part.Circle(App.Vector(-11.1, 17.6, 0), App.Vector(0, 0, 1), 0.75), False)
sketch12.addConstraint([
    Sketcher.Constraint("Diameter", 0, Q("1.5 mm")),
    Sketcher.Constraint("DistanceX", 0, 3, -1, 1, Q("11.1 mm")),
    Sketcher.Constraint("DistanceY", -1, 1, 0, 3, Q("17.6 mm")),
])
sketch12.setExpression("Constraints[0]", "Params.sketch12_diameter")
pad5 = body.newObject("PartDesign::Pad", "Pad004")
pad5.Profile = sketch12
pad5.setExpression("Length", "Params.pad5_length")
pad5.Reversed = True

doc.recompute()
